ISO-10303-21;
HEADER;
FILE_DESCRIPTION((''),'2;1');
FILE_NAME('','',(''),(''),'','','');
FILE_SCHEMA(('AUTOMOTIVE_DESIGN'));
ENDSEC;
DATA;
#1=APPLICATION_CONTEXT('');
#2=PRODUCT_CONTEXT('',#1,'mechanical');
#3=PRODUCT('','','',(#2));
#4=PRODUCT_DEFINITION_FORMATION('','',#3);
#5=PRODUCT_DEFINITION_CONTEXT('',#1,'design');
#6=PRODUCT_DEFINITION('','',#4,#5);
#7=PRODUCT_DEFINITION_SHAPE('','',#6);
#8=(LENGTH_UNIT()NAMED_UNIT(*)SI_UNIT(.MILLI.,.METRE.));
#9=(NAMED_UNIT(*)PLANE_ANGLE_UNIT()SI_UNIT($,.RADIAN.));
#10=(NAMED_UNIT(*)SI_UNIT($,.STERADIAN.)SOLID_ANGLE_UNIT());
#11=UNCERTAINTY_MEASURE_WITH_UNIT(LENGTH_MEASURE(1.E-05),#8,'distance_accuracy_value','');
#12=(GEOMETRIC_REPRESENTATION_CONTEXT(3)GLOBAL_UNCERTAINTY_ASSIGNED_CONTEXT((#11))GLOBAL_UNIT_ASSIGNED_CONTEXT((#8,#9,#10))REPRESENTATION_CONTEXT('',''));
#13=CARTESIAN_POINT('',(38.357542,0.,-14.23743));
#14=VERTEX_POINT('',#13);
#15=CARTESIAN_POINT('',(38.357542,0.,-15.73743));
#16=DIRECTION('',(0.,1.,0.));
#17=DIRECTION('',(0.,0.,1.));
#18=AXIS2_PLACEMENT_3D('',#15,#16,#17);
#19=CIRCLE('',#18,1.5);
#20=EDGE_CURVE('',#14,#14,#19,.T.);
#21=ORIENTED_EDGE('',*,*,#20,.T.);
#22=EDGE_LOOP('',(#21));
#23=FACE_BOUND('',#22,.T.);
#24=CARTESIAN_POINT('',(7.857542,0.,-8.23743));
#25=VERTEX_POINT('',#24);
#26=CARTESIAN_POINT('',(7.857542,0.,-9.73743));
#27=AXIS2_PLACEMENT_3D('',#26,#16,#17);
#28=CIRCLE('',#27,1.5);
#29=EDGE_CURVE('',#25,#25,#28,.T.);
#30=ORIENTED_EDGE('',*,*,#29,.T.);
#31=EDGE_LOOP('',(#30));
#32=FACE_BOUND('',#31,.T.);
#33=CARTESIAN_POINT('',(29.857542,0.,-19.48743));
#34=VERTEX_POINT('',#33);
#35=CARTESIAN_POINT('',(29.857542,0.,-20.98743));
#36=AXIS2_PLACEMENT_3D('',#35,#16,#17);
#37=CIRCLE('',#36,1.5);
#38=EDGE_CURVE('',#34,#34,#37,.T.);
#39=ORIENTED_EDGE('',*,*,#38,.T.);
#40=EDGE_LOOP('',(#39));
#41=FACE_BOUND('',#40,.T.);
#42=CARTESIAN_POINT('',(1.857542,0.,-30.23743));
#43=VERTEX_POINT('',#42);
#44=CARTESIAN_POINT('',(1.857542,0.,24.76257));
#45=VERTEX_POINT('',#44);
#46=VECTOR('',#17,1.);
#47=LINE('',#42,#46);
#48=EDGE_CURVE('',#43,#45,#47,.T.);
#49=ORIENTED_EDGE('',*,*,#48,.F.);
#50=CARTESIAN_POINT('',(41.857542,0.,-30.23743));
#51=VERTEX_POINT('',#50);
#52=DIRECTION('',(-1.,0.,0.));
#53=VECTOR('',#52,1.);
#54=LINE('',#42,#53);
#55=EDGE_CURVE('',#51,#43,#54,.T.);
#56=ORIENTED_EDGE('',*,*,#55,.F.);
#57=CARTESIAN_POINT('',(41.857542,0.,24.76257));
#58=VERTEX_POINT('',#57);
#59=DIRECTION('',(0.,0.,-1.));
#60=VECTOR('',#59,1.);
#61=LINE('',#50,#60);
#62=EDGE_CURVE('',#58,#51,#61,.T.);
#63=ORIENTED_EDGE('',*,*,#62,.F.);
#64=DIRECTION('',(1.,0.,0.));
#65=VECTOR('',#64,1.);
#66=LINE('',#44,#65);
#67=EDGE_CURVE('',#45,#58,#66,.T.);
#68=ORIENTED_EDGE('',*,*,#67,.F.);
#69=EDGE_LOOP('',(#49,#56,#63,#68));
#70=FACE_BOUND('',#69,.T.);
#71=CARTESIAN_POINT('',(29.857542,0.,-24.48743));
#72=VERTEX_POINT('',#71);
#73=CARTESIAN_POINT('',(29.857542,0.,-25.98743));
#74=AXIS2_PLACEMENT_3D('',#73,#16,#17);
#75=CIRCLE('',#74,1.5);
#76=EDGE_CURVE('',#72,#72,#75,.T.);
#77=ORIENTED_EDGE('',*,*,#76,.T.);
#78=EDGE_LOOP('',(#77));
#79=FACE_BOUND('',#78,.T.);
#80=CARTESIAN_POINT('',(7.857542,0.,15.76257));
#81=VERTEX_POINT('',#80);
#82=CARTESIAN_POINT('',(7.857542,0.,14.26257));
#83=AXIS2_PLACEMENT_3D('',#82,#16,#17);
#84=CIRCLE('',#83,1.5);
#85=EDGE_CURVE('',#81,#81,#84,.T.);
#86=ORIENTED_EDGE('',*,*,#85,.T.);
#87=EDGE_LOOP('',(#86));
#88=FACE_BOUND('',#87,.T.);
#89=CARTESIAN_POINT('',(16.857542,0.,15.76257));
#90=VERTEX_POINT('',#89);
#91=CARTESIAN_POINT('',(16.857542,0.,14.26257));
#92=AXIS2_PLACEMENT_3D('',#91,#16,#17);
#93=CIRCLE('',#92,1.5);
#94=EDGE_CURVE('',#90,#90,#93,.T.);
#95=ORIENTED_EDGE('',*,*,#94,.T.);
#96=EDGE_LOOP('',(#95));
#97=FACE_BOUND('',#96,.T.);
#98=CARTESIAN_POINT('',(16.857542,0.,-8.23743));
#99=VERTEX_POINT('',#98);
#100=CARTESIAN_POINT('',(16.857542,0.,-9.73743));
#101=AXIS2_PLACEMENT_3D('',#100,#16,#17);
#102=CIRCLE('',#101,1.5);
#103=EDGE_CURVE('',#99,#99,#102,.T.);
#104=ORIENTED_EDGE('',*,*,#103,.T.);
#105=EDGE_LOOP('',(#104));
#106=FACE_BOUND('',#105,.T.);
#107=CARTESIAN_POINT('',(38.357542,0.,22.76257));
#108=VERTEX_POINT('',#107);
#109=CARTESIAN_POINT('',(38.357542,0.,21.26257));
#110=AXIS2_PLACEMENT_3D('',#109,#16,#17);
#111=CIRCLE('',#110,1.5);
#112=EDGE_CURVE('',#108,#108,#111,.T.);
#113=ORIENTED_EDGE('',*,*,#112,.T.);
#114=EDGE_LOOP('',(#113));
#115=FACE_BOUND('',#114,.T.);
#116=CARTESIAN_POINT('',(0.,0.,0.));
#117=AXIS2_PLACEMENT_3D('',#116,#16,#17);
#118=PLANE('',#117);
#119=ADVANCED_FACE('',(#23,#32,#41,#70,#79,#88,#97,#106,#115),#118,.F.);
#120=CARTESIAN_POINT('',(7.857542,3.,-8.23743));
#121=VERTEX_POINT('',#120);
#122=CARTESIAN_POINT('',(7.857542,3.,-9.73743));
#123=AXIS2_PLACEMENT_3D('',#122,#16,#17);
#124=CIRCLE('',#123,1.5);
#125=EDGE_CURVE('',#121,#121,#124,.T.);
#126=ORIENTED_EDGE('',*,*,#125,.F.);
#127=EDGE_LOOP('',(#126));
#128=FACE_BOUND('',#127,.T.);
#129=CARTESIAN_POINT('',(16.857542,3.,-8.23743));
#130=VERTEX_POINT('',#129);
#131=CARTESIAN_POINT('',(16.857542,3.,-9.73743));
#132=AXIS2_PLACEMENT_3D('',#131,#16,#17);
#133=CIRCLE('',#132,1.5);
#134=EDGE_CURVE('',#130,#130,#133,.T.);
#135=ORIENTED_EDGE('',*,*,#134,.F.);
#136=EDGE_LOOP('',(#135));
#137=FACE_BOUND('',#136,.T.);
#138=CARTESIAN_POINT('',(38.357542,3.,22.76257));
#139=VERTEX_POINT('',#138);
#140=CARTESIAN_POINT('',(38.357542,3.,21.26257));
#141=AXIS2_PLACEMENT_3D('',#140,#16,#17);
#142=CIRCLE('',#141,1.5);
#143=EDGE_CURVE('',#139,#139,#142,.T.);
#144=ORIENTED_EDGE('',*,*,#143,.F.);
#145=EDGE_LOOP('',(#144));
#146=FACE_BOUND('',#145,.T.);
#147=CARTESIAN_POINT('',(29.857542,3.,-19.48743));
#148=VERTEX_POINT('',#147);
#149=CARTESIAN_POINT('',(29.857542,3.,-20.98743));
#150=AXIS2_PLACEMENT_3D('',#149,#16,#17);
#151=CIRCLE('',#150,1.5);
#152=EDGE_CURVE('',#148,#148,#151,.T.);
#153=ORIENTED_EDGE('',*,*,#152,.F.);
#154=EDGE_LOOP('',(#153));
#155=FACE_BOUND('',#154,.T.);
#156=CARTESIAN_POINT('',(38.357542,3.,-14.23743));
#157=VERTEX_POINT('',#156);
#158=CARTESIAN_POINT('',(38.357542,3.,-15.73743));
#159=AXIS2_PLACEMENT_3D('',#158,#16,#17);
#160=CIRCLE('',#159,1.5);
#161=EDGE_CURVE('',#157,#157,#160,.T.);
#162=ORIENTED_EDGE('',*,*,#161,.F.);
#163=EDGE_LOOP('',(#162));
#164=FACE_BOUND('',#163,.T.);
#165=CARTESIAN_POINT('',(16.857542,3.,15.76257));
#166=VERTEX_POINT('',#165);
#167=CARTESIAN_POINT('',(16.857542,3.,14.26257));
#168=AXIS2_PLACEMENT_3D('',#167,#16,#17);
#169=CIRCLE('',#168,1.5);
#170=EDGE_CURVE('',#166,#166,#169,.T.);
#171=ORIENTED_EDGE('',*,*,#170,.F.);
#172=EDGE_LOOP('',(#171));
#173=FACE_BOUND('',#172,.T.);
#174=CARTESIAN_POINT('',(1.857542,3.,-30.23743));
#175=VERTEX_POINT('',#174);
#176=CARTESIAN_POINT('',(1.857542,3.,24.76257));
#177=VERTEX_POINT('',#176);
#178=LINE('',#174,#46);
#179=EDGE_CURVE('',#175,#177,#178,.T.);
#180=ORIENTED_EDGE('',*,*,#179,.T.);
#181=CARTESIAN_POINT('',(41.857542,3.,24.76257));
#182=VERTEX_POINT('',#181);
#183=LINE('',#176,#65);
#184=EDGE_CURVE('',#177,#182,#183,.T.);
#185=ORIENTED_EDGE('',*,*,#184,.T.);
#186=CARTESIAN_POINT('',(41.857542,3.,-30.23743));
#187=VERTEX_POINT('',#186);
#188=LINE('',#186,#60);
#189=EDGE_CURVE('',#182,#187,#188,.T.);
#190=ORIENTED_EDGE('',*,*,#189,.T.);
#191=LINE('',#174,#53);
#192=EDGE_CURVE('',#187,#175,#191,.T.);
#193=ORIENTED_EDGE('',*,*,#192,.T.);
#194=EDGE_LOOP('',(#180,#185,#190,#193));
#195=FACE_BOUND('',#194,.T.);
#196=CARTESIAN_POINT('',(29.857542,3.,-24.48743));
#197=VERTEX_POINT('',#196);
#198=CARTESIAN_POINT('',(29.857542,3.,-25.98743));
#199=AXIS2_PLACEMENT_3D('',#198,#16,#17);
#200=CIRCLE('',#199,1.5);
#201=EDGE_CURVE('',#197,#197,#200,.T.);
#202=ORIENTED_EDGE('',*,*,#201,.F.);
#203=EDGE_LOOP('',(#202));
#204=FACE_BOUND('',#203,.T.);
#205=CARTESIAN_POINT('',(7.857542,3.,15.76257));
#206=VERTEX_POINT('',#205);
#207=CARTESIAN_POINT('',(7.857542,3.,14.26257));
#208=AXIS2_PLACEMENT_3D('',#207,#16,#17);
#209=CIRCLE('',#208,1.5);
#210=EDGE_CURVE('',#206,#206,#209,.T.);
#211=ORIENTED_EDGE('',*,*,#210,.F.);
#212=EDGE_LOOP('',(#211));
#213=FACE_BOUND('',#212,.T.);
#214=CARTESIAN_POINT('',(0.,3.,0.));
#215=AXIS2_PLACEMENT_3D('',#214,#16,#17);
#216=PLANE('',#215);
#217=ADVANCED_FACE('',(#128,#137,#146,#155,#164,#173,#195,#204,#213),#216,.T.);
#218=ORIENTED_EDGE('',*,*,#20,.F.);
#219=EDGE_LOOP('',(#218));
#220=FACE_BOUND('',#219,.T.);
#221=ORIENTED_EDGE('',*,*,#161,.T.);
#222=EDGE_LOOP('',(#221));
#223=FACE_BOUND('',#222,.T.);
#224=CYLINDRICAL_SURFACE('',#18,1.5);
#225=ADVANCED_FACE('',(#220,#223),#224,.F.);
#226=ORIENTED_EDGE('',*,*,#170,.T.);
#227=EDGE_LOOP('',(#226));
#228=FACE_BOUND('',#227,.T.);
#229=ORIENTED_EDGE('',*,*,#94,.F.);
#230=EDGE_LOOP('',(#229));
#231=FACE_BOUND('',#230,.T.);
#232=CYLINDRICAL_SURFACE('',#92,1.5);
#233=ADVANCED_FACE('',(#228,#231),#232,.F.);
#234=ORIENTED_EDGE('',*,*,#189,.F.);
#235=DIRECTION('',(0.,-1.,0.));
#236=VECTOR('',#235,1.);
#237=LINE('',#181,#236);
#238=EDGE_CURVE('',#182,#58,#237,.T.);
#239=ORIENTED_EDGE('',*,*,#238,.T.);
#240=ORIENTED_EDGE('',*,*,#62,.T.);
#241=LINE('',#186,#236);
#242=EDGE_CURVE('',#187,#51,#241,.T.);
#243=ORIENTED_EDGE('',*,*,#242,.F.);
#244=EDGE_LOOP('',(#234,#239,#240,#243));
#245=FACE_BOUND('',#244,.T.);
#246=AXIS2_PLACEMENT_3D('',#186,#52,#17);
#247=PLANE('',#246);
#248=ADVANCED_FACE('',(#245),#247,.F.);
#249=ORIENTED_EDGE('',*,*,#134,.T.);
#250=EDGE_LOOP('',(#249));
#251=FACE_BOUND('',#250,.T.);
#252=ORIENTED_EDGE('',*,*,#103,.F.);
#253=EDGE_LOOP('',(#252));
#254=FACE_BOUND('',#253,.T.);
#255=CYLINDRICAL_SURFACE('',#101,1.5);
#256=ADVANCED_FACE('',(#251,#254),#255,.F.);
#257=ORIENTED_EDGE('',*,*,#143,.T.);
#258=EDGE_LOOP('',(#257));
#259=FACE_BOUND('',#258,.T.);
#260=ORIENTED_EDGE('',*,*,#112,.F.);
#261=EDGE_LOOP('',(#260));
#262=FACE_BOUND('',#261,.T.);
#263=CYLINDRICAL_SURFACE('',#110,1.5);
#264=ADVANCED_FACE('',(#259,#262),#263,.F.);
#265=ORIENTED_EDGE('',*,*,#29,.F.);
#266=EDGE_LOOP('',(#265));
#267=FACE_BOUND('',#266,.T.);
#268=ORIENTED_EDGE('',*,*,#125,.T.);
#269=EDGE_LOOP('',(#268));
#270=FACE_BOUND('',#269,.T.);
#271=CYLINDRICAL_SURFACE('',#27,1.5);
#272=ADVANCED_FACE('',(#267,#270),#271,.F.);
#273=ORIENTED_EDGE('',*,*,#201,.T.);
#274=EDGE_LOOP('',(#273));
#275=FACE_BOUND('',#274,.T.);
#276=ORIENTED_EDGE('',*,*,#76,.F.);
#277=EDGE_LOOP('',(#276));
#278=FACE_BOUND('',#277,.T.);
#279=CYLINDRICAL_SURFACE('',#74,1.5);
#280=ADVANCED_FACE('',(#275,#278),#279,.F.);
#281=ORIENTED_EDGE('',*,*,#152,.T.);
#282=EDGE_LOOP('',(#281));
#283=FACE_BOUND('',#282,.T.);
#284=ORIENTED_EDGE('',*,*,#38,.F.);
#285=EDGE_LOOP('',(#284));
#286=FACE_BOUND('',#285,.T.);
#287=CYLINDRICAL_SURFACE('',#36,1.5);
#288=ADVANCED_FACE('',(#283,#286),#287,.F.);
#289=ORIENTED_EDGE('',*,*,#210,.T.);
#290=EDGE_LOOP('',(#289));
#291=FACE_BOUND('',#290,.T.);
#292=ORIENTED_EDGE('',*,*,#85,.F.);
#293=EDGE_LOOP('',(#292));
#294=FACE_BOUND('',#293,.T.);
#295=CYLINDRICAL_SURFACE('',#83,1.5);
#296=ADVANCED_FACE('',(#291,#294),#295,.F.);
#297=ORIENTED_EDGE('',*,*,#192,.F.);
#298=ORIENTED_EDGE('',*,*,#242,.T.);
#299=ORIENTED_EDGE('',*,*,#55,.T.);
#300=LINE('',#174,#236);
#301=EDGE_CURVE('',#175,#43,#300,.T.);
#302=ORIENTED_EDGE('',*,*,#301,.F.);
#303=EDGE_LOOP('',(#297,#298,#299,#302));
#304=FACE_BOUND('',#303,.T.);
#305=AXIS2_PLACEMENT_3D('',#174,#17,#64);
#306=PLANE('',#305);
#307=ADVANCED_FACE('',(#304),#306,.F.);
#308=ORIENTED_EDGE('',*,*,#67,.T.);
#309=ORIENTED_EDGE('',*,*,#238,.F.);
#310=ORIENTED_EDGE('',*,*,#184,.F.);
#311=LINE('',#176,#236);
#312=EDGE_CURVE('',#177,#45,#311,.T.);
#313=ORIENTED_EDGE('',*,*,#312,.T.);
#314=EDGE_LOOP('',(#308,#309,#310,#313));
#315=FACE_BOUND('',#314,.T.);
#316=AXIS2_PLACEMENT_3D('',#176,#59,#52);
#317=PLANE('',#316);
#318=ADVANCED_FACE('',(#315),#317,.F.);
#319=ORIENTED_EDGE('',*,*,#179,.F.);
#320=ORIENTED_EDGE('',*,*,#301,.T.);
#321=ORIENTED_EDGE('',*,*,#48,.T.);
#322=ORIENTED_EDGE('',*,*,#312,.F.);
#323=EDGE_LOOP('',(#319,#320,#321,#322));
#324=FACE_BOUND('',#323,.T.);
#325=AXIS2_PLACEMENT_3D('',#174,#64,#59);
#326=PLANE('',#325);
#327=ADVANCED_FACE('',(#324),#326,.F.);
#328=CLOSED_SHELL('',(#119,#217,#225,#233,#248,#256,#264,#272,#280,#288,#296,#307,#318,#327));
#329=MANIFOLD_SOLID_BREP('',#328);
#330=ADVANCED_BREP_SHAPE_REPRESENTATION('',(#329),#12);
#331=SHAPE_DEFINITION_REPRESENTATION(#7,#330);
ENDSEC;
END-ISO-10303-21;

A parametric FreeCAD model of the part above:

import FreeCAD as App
import Part
import Sketcher

V = App.Vector
Q = App.Units.Quantity


def add_polygon(sketch, points):
    """Adds a closed chain of lines whose ends are joined by coincident constraints."""
    first, n = sketch.GeometryCount, len(points)
    for a, b in zip(points, points[1:] + points[:1]):
        sketch.addGeometry(Part.LineSegment(App.Vector(*a, 0), App.Vector(*b, 0)), False)
    for i in range(n):
        sketch.addConstraint(Sketcher.Constraint("Coincident", first + i, 2, first + (i + 1) % n, 1))

doc = App.newDocument("Part")
body = doc.addObject("PartDesign::Body", "Body")

sketch1 = body.newObject("Sketcher::SketchObject", "Sketch")
sketch1.AttachmentSupport = (doc.getObject("XZ_Plane"), [""])
sketch1.MapMode = "FlatFace"
add_polygon(sketch1, [(1.857542, -30.23743), (1.857542, 24.76257), (41.857542, 24.76257), (41.857542, -30.23743)])
sketch1.addConstraint([
    Sketcher.Constraint("Vertical", 0),
    Sketcher.Constraint("Horizontal", 1),
    Sketcher.Constraint("Vertical", 2),
    Sketcher.Constraint("Horizontal", 3),
    Sketcher.Constraint("DistanceX", 1, 1, 1, 2, Q("40 mm")),
    Sketcher.Constraint("DistanceY", 0, 1, 0, 2, Q("55 mm")),
    Sketcher.Constraint("DistanceX", -1, 1, 0, 2, Q("1.857542 mm")),
    Sketcher.Constraint("DistanceY", -1, 1, 0, 2, Q("24.76257 mm")),
])
pad1 = body.newObject("PartDesign::Pad", "Pad")
pad1.Profile = sketch1
pad1.Length = 3
pad1.Reversed = True

sketch2 = body.newObject("Sketcher::SketchObject", "Sketch001")
sketch2.AttachmentSupport = (doc.getObject("XZ_Plane"), [""])
sketch2.MapMode = "FlatFace"
sketch2.AttachmentOffset = App.Placement(V(0, 0, -3), App.Rotation())
sketch2.addGeometry([
    Part.Circle(V(38.357542, 21.26257, 0), V(0, 0, 1), 1.5),
    Part.Circle(V(38.357542, -15.73743, 0), V(0, 0, 1), 1.5),
    Part.Circle(V(16.857542, 14.26257, 0), V(0, 0, 1), 1.5),
    Part.Circle(V(7.857542, 14.26257, 0), V(0, 0, 1), 1.5),
    Part.Circle(V(7.857542, -9.73743, 0), V(0, 0, 1), 1.5),
    Part.Circle(V(16.857542, -9.73743, 0), V(0, 0, 1), 1.5),
    Part.Circle(V(29.857542, -20.98743, 0), V(0, 0, 1), 1.5),
    Part.Circle(V(29.857542, -25.98743, 0), V(0, 0, 1), 1.5),
], False)
sketch2.addConstraint([
    Sketcher.Constraint("Equal", 0, 1),
    Sketcher.Constraint("Equal", 1, 2),
    Sketcher.Constraint("Equal", 2, 3),
    Sketcher.Constraint("Equal", 3, 4),
    Sketcher.Constraint("Equal", 4, 5),
    Sketcher.Constraint("Equal", 5, 6),
    Sketcher.Constraint("Equal", 6, 7),
    Sketcher.Constraint("Horizontal", 2, 3, 3, 3),
    Sketcher.Constraint("Horizontal", 4, 3, 5, 3),
    Sketcher.Constraint("Vertical", 0, 3, 1, 3),
    Sketcher.Constraint("Vertical", 3, 3, 4, 3),
    Sketcher.Constraint("Vertical", 2, 3, 5, 3),
    Sketcher.Constraint("Vertical", 6, 3, 7, 3),
    Sketcher.Constraint("Diameter", 0, Q("3 mm")),
    Sketcher.Constraint("DistanceY", 1, 3, 0, 3, Q("37 mm")),
    Sketcher.Constraint("DistanceY", 2, 3, 0, 3, Q("7 mm")),
    Sketcher.Constraint("DistanceX", 3, 3, 2, 3, Q("9 mm")),
    Sketcher.Constraint("DistanceY", 4, 3, 3, 3, Q("24 mm")),
    Sketcher.Constraint("DistanceX", 5, 3, 6, 3, Q("13 mm")),
    Sketcher.Constraint("DistanceY", 7, 3, 6, 3, Q("5 mm")),
    Sketcher.Constraint("DistanceX", 2, 3, 0, 3, Q("21.5 mm")),
    Sketcher.Constraint("DistanceY", 6, 3, 1, 3, Q("5.25 mm")),
    Sketcher.Constraint("DistanceX", -1, 1, 0, 3, Q("38.357542 mm")),
    Sketcher.Constraint("DistanceY", -1, 1, 0, 3, Q("21.26257 mm")),
])
pocket1 = body.newObject("PartDesign::Pocket", "Pocket")
pocket1.Profile = sketch2
pocket1.Length = 3
pocket1.Reversed = True

doc.recompute()
